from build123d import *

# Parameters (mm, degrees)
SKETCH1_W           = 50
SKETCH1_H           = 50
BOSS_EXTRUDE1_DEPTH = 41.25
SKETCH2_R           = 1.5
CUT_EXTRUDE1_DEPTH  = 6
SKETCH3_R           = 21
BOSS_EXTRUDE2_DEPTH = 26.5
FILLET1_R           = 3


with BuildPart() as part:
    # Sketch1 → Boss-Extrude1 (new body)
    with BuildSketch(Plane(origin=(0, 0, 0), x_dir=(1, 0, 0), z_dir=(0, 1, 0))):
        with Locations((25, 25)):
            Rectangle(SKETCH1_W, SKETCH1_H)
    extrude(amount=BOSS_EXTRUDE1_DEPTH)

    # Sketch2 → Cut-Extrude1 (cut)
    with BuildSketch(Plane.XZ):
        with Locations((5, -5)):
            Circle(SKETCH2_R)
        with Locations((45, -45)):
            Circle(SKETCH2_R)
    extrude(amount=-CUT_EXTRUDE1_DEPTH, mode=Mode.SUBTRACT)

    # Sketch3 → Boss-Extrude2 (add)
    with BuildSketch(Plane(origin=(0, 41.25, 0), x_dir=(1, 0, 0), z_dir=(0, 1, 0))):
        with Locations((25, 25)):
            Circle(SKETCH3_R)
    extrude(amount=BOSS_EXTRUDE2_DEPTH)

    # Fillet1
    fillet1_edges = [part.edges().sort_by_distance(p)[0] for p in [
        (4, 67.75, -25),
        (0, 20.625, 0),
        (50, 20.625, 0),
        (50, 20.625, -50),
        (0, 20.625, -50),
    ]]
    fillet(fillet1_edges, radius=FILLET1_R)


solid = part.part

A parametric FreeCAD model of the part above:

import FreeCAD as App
import Part
import Sketcher
from FreeCAD import Vector
Q = App.Units.Quantity


def edges_at(feature, points):
    """Names of the edges that pass closest to the given points."""
    edges = feature.Shape.Edges
    near = lambda p: min(range(len(edges)), key=lambda i: edges[i].distToShape(Part.Vertex(*p))[0])
    return sorted({f"Edge{near(p) + 1}" for p in points})

doc = App.newDocument("Part")
params = doc.addObject("Spreadsheet::Sheet", "Params")
for row, (alias, value) in enumerate([
    ("sketch1_width", "50 mm"),
    ("pad1_length", "41.25 mm"),
    ("sketch2_diameter", "3 mm"),
    ("pocket1_length", "6 mm"),
    ("sketch3_diameter", "42 mm"),
    ("pad2_length", "26.5 mm"),
    ("fillet_radius", "3 mm"),
], start=1):
    params.set(f"A{row}", alias)
    params.set(f"B{row}", "=" + value)
    params.setAlias(f"B{row}", alias)

body = doc.addObject("PartDesign::Body", "Body")

sketch1 = doc.addObject("Sketcher::SketchObject", "Sketch")
body.addObject(sketch1)
sketch1.AttachmentSupport = (doc.XZ_Plane, [""])
sketch1.MapMode = "FlatFace"
sketch1.addGeometry(Part.LineSegment(Vector(0, -50, 0), Vector(0, 0, 0)), False)
sketch1.addGeometry(Part.LineSegment(Vector(0, 0, 0), Vector(50, 0, 0)), False)
sketch1.addGeometry(Part.LineSegment(Vector(50, 0, 0), Vector(50, -50, 0)), False)
sketch1.addGeometry(Part.LineSegment(Vector(50, -50, 0), Vector(0, -50, 0)), False)
sketch1.addConstraint(Sketcher.Constraint("Coincident", 0, 2, 1, 1))
sketch1.addConstraint(Sketcher.Constraint("Coincident", 1, 2, 2, 1))
sketch1.addConstraint(Sketcher.Constraint("Coincident", 2, 2, 3, 1))
sketch1.addConstraint(Sketcher.Constraint("Coincident", 3, 2, 0, 1))
sketch1.addConstraint(Sketcher.Constraint("Vertical", 0))
sketch1.addConstraint(Sketcher.Constraint("Horizontal", 1))
sketch1.addConstraint(Sketcher.Constraint("Vertical", 2))
sketch1.addConstraint(Sketcher.Constraint("Horizontal", 3))
sketch1.addConstraint(Sketcher.Constraint("Coincident", 0, 2, -1, 1))
sketch1.addConstraint(Sketcher.Constraint("Equal", 3, 0))
sketch1.addConstraint(Sketcher.Constraint("DistanceX", 1, 1, 1, 2, Q("50 mm")))
sketch1.setExpression("Constraints[10]", "Params.sketch1_width")
pad1 = doc.addObject("PartDesign::Pad", "Pad")
body.addObject(pad1)
pad1.Profile = sketch1
pad1.setExpression("Length", "Params.pad1_length")
pad1.Reversed = True

sketch2 = doc.addObject("Sketcher::SketchObject", "Sketch001")
body.addObject(sketch2)
sketch2.AttachmentSupport = (doc.XZ_Plane, [""])
sketch2.MapMode = "FlatFace"
sketch2.addGeometry(Part.Circle(Vector(5, -5, 0), Vector(0, 0, 1), 1.5), False)
sketch2.addGeometry(Part.Circle(Vector(45, -45, 0), Vector(0, 0, 1), 1.5), False)
sketch2.addConstraint(Sketcher.Constraint("Equal", 0, 1))
sketch2.addConstraint(Sketcher.Constraint("Diameter", 0, Q("3 mm")))
sketch2.addConstraint(Sketcher.Constraint("DistanceX", -1, 1, 0, 3, Q("5 mm")))
sketch2.addConstraint(Sketcher.Constraint("DistanceY", 0, 3, -1, 1, Q("5 mm")))
sketch2.addConstraint(Sketcher.Constraint("DistanceX", -1, 1, 1, 3, Q("45 mm")))
sketch2.addConstraint(Sketcher.Constraint("DistanceY", 1, 3, -1, 1, Q("45 mm")))
sketch2.setExpression("Constraints[1]", "Params.sketch2_diameter")
pocket1 = doc.addObject("PartDesign::Pocket", "Pocket")
body.addObject(pocket1)
pocket1.Profile = sketch2
pocket1.setExpression("Length", "Params.pocket1_length")

sketch3 = doc.addObject("Sketcher::SketchObject", "Sketch002")
body.addObject(sketch3)
sketch3.AttachmentSupport = (doc.XZ_Plane, [""])
sketch3.MapMode = "FlatFace"
sketch3.AttachmentOffset = App.Placement(Vector(0, 0, -41.25), App.Rotation())
sketch3.addGeometry(Part.Circle(Vector(25, -25, 0), Vector(0, 0, 1), 21), False)
sketch3.addConstraint(Sketcher.Constraint("Diameter", 0, Q("42 mm")))
sketch3.addConstraint(Sketcher.Constraint("DistanceX", -1, 1, 0, 3, Q("25 mm")))
sketch3.addConstraint(Sketcher.Constraint("DistanceY", 0, 3, -1, 1, Q("25 mm")))
sketch3.setExpression("Constraints[0]", "Params.sketch3_diameter")
pad2 = doc.addObject("PartDesign::Pad", "Pad001")
body.addObject(pad2)
pad2.Profile = sketch3
pad2.setExpression("Length", "Params.pad2_length")
pad2.Reversed = True
doc.recompute()

fillet = doc.addObject("PartDesign::Fillet", "Fillet")
body.addObject(fillet)
fillet.Base = (pad2, edges_at(pad2, [
    (4, 67.75, -25),
    (0, 20.625, 0),
    (50, 20.625, 0),
    (50, 20.625, -50),
    (0, 20.625, -50),
]))
fillet.setExpression("Radius", "Params.fillet_radius")

doc.recompute()
